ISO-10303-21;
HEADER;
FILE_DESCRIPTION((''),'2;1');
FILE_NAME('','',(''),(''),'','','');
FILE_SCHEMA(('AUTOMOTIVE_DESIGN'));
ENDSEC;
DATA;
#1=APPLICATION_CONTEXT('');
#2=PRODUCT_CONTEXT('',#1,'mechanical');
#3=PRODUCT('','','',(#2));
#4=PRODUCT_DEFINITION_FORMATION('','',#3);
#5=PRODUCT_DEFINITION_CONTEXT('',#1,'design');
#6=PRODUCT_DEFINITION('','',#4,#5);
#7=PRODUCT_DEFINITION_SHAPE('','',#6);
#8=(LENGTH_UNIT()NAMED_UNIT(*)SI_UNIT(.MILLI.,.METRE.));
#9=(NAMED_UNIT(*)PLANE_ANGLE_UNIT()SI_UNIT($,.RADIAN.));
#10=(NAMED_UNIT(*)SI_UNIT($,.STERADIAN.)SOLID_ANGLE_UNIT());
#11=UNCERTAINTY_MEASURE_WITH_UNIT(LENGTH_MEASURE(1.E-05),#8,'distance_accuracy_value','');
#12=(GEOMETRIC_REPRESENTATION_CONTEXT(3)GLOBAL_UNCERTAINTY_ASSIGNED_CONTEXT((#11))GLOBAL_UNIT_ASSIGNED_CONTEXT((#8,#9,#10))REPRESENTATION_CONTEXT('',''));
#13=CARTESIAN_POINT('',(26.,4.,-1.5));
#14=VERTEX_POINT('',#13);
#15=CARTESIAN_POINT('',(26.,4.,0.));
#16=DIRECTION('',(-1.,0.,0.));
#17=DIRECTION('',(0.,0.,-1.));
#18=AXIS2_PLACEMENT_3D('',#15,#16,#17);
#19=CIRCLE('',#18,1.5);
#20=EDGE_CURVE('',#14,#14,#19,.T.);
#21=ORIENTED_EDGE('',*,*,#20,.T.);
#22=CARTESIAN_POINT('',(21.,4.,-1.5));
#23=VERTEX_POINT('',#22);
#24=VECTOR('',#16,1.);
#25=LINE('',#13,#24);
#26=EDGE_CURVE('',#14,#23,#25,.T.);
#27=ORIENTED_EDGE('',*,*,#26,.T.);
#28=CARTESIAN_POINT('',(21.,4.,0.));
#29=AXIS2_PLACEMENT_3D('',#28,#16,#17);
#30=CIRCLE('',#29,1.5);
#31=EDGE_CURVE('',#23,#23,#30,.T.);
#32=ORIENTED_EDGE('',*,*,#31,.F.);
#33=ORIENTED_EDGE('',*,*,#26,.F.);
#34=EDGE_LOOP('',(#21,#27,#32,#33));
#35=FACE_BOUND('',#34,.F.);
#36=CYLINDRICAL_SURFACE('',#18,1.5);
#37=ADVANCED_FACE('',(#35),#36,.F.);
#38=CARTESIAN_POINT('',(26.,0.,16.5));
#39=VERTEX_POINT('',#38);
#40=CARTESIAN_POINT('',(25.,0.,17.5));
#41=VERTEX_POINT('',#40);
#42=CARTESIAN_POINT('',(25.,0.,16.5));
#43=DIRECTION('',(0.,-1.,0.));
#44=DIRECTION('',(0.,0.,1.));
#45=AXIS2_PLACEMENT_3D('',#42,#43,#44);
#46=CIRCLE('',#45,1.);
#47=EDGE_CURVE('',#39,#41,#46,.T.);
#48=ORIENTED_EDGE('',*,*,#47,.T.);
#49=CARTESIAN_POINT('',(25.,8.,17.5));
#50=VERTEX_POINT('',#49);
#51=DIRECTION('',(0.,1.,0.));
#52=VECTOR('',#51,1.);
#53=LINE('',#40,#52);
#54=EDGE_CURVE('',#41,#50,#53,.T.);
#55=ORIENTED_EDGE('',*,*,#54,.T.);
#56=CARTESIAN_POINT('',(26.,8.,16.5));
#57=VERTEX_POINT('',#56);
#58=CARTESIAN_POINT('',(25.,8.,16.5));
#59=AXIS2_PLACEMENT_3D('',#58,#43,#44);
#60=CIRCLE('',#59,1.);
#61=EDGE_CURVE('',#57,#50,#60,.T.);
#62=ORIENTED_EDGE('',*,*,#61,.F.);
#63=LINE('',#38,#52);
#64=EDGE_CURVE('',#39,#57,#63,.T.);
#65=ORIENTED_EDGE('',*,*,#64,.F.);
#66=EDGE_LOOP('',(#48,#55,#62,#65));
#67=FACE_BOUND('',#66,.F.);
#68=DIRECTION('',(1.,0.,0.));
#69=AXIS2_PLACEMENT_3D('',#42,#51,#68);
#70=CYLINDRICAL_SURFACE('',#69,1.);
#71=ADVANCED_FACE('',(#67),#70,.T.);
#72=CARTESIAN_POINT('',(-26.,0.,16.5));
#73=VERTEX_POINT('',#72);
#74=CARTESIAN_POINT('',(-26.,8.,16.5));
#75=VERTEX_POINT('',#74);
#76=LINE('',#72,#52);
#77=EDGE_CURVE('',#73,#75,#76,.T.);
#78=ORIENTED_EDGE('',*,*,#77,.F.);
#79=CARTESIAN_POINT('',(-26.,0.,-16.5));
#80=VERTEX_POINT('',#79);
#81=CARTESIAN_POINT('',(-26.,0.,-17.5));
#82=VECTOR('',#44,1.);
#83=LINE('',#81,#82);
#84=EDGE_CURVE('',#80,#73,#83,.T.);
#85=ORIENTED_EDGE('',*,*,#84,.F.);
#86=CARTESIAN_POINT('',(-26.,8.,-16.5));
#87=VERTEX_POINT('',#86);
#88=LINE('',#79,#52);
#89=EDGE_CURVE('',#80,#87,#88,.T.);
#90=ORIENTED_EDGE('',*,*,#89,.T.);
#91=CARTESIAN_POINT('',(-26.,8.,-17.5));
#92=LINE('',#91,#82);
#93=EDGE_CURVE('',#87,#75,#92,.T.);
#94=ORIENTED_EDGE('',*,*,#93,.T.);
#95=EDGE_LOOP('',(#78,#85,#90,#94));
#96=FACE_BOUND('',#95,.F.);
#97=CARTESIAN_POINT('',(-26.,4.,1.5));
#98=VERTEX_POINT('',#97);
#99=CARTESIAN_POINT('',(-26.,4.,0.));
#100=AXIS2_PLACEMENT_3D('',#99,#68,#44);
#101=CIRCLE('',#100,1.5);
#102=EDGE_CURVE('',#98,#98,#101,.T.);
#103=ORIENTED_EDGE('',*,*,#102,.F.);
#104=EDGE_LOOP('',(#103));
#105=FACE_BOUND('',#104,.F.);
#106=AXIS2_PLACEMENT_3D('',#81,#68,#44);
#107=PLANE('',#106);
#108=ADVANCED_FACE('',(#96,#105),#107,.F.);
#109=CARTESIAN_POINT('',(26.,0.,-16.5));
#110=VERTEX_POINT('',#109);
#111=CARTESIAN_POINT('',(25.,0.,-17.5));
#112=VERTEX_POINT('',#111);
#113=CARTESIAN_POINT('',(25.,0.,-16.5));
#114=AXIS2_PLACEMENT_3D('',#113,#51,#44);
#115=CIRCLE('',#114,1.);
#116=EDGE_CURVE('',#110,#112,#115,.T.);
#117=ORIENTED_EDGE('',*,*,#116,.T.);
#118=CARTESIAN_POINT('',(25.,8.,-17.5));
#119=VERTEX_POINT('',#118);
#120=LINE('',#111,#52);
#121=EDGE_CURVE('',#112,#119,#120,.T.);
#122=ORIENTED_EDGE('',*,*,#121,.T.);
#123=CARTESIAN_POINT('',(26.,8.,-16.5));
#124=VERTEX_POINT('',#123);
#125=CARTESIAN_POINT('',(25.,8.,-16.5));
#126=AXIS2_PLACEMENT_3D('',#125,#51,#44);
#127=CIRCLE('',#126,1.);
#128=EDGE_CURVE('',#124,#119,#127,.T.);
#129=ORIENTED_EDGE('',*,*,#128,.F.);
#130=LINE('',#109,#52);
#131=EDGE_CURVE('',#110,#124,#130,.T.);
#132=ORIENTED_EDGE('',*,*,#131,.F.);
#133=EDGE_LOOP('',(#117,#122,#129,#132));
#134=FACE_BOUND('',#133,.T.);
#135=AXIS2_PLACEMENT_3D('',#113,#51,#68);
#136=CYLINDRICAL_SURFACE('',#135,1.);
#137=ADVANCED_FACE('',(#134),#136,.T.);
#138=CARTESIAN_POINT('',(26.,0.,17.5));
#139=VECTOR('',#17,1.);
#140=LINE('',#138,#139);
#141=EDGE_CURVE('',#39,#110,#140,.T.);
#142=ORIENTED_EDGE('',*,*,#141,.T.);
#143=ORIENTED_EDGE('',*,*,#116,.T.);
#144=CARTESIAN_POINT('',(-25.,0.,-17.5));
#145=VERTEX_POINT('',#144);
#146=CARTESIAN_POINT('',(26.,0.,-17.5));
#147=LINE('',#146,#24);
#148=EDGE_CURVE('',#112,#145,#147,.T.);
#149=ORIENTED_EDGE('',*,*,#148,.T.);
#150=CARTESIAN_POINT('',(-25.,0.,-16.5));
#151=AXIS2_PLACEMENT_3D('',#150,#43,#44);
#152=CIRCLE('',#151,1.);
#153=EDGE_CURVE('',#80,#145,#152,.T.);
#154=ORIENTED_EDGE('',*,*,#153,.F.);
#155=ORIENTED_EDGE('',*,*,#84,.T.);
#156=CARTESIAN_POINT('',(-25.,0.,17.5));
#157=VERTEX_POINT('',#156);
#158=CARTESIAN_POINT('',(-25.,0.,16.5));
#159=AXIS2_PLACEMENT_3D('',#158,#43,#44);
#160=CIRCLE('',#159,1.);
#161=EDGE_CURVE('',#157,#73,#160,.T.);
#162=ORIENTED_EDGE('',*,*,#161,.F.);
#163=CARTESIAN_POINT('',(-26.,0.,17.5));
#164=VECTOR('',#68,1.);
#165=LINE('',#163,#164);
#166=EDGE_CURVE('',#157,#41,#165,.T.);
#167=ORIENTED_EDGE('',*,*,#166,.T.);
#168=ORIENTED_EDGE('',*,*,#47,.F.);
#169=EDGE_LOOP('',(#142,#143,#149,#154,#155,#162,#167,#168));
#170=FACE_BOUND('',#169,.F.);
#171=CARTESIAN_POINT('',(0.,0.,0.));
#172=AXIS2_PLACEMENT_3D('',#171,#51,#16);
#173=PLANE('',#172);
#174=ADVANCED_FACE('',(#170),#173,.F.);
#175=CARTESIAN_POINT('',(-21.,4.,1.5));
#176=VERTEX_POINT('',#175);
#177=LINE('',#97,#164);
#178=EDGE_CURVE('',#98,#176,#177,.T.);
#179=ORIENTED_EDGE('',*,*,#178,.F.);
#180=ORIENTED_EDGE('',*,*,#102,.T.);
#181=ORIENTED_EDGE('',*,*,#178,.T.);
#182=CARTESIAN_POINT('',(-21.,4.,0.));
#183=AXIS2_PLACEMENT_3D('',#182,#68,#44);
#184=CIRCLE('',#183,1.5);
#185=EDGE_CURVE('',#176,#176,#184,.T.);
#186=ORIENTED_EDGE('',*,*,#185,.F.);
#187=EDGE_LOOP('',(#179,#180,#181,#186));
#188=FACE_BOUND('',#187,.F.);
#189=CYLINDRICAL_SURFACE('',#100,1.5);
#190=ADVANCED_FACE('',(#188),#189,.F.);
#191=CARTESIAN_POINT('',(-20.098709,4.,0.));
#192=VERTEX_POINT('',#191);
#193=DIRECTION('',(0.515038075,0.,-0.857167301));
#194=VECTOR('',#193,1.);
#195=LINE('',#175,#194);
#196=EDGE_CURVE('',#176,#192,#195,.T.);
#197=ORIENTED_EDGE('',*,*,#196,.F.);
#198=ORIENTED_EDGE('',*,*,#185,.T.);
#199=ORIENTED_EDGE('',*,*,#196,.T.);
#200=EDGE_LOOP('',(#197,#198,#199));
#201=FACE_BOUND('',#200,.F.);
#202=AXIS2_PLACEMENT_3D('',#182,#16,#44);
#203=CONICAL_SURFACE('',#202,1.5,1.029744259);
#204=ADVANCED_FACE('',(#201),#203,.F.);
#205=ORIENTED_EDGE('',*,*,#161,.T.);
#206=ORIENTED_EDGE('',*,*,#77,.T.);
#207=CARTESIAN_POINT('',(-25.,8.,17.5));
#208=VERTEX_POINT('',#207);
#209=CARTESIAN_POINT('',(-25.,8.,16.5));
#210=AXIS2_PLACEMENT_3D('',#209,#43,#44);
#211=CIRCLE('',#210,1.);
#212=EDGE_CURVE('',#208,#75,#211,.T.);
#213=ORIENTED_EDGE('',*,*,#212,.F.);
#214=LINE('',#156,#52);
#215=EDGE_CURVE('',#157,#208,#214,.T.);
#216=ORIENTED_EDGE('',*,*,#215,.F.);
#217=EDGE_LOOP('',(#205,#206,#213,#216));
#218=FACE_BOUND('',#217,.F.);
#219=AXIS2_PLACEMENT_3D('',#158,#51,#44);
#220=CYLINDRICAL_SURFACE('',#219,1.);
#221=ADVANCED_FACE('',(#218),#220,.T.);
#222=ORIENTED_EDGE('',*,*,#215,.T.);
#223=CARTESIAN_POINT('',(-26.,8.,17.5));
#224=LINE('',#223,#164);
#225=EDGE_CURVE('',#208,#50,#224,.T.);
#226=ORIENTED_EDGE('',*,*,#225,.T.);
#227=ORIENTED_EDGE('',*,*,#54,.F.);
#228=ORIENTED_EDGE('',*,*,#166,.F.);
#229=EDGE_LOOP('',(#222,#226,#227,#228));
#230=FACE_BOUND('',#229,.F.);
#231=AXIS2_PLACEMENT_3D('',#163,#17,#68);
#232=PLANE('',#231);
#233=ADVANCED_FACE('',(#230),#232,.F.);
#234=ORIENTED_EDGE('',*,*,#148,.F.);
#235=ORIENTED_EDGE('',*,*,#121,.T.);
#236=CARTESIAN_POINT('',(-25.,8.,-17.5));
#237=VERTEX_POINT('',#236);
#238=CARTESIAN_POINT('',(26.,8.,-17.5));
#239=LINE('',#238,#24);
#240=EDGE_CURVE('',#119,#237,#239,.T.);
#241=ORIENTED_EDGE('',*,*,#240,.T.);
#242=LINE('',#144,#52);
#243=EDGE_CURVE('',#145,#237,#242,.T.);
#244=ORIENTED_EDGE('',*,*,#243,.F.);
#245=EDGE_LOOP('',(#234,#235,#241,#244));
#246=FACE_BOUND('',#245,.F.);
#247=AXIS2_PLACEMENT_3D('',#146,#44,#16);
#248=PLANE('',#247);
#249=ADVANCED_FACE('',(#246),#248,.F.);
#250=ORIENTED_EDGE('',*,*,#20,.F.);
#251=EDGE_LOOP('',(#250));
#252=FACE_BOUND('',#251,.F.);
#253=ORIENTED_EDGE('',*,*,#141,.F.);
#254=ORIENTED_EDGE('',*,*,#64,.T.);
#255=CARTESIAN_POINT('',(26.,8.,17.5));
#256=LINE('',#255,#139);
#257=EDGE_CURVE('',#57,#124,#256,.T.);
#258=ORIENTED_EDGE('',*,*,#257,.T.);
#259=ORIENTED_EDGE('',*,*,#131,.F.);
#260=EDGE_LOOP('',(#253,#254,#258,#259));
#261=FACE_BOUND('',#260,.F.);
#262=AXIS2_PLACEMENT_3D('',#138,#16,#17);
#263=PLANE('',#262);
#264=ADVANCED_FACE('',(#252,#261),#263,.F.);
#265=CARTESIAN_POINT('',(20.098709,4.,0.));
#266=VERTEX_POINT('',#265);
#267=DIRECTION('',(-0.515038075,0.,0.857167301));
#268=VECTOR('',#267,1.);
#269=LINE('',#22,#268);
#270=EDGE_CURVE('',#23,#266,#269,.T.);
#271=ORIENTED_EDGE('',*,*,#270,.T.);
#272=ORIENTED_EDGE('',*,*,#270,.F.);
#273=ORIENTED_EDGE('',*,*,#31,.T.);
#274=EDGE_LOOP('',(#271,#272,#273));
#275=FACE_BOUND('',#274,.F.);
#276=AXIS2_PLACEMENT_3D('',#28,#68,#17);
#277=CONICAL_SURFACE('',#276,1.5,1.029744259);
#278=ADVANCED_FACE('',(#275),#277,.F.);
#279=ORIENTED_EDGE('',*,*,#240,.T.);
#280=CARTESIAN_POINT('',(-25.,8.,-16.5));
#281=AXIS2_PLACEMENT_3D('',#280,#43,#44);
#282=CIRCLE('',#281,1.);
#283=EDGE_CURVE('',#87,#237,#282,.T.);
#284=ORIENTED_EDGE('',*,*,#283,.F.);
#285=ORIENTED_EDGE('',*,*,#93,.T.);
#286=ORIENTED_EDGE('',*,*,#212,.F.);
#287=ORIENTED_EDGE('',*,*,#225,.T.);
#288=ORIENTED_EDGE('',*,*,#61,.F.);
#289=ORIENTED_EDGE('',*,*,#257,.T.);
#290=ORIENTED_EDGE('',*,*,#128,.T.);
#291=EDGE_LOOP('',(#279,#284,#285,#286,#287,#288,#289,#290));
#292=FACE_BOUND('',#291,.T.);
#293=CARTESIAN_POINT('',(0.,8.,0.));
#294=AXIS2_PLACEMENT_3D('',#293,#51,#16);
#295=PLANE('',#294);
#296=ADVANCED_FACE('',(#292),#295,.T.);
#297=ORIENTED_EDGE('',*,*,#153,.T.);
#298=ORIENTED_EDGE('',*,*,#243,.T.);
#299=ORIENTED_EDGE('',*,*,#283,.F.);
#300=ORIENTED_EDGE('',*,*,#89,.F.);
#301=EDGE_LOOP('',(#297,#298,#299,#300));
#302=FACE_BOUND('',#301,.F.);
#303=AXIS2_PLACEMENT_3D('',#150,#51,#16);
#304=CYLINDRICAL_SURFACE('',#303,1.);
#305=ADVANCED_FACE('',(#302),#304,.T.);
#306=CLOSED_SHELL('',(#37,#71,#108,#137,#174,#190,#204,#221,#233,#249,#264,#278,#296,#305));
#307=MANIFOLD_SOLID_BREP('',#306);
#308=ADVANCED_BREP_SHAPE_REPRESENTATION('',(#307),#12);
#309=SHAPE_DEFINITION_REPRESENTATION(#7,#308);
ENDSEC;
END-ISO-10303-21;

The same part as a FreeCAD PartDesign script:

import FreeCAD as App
import Part
import Sketcher


def edges_at(feature, points):
    """Names of the edges that pass closest to the given points."""
    edges = feature.Shape.Edges
    near = lambda p: min(range(len(edges)), key=lambda i: edges[i].distToShape(Part.Vertex(*p))[0])
    return sorted({f"Edge{near(p) + 1}" for p in points})


def add_polygon(sketch, points):
    """Adds a closed chain of lines whose ends are joined by coincident constraints."""
    first, n = sketch.GeometryCount, len(points)
    for a, b in zip(points, points[1:] + points[:1]):
        sketch.addGeometry(Part.LineSegment(App.Vector(*a, 0), App.Vector(*b, 0)), False)
    for i in range(n):
        sketch.addConstraint(Sketcher.Constraint("Coincident", first + i, 2, first + (i + 1) % n, 1))

doc = App.newDocument("Part")
body = doc.addObject("PartDesign::Body", "Body")

sketch1 = doc.addObject("Sketcher::SketchObject", "Sketch")
body.addObject(sketch1)
sketch1.AttachmentSupport = (doc.XZ_Plane, [""])
sketch1.MapMode = "FlatFace"
add_polygon(sketch1, [(26, 17.5), (26, -17.5), (-26, -17.5), (-26, 17.5)])
sketch1.addConstraint([
    Sketcher.Constraint("Vertical", 0),
    Sketcher.Constraint("Horizontal", 1),
    Sketcher.Constraint("Vertical", 2),
    Sketcher.Constraint("Horizontal", 3),
    Sketcher.Constraint("Symmetric", 0, 2, 2, 2, -1, 1),
    Sketcher.Constraint("DistanceX", 1, 2, 1, 1, 52.0),
    Sketcher.Constraint("DistanceY", 0, 2, 0, 1, 35.0),
])
pad1 = doc.addObject("PartDesign::Pad", "Pad")
body.addObject(pad1)
pad1.Profile = sketch1
pad1.Length = 8
pad1.Reversed = True
doc.recompute()

fillet = doc.addObject("PartDesign::Fillet", "Fillet")
body.addObject(fillet)
fillet.Base = (pad1, edges_at(pad1, [
    (26, 4, -17.5),
    (-26, 4, -17.5),
    (26, 4, 17.5),
    (-26, 4, 17.5),
]))
fillet.Radius = 1

sketch2 = doc.addObject("Sketcher::SketchObject", "Sketch001")
body.addObject(sketch2)
sketch2.AttachmentSupport = (doc.YZ_Plane, [""])
sketch2.MapMode = "FlatFace"
sketch2.AttachmentOffset = App.Placement(App.Vector(0, 0, -26), App.Rotation())
sketch2.addGeometry(Part.Circle(App.Vector(4, 0, 0), App.Vector(0, 0, 1), 1.5), False)
sketch2.addConstraint([
    Sketcher.Constraint("PointOnObject", 0, 3, -1),
    Sketcher.Constraint("Diameter", 0, 3.0),
    Sketcher.Constraint("DistanceX", -1, 1, 0, 3, 4.0),
])
doc.recompute()
hole = doc.addObject("PartDesign::Hole", "Hole")
body.addObject(hole)
hole.Profile = sketch2
hole.ThreadType = "None"
hole.Diameter = 3
hole.DepthType = "Dimension"
hole.Depth = 5
hole.DrillPoint = "Angled"
hole.DrillPointAngle = 118
hole.Reversed = True

sketch3 = doc.addObject("Sketcher::SketchObject", "Sketch002")
body.addObject(sketch3)
sketch3.AttachmentSupport = (doc.YZ_Plane, [""])
sketch3.MapMode = "FlatFace"
sketch3.AttachmentOffset = App.Placement(App.Vector(0, 0, 26), App.Rotation())
sketch3.addGeometry(Part.Circle(App.Vector(4, 0, 0), App.Vector(0, 0, 1), 1.5), False)
sketch3.addConstraint([
    Sketcher.Constraint("PointOnObject", 0, 3, -1),
    Sketcher.Constraint("Diameter", 0, 3.0),
    Sketcher.Constraint("DistanceX", -1, 1, 0, 3, 4.0),
])
doc.recompute()
hole2 = doc.addObject("PartDesign::Hole", "Hole001")
body.addObject(hole2)
hole2.Profile = sketch3
hole2.ThreadType = "None"
hole2.Diameter = 3
hole2.DepthType = "Dimension"
hole2.Depth = 5
hole2.DrillPoint = "Angled"
hole2.DrillPointAngle = 118

doc.recompute()
